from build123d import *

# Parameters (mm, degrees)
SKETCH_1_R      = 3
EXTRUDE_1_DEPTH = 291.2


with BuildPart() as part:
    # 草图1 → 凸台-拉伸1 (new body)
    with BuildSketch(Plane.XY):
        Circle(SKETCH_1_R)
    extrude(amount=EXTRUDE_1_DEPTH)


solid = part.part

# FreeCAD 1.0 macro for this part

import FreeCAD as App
import Part
import Sketcher
from FreeCAD import Vector
Q = App.Units.Quantity

doc = App.newDocument("Part")
body = doc.addObject("PartDesign::Body", "Body")

# Sketch on XY plane
sketch1 = body.newObject("Sketcher::SketchObject", "Sketch")
sketch1.AttachmentSupport = (doc.getObject("XY_Plane"), [""])
sketch1.MapMode = "FlatFace"
sketch1.addGeometry(Part.Circle(Vector(0, 0, 0), Vector(0, 0, 1), 3), False)
sketch1.addConstraint([
    Sketcher.Constraint("Coincident", 0, 3, -1, 1),
    Sketcher.Constraint("Diameter", 0, Q("6 mm")),
])
pad1 = body.newObject("PartDesign::Pad", "Pad")
pad1.Profile = sketch1
pad1.Length = 291.2

doc.recompute()
